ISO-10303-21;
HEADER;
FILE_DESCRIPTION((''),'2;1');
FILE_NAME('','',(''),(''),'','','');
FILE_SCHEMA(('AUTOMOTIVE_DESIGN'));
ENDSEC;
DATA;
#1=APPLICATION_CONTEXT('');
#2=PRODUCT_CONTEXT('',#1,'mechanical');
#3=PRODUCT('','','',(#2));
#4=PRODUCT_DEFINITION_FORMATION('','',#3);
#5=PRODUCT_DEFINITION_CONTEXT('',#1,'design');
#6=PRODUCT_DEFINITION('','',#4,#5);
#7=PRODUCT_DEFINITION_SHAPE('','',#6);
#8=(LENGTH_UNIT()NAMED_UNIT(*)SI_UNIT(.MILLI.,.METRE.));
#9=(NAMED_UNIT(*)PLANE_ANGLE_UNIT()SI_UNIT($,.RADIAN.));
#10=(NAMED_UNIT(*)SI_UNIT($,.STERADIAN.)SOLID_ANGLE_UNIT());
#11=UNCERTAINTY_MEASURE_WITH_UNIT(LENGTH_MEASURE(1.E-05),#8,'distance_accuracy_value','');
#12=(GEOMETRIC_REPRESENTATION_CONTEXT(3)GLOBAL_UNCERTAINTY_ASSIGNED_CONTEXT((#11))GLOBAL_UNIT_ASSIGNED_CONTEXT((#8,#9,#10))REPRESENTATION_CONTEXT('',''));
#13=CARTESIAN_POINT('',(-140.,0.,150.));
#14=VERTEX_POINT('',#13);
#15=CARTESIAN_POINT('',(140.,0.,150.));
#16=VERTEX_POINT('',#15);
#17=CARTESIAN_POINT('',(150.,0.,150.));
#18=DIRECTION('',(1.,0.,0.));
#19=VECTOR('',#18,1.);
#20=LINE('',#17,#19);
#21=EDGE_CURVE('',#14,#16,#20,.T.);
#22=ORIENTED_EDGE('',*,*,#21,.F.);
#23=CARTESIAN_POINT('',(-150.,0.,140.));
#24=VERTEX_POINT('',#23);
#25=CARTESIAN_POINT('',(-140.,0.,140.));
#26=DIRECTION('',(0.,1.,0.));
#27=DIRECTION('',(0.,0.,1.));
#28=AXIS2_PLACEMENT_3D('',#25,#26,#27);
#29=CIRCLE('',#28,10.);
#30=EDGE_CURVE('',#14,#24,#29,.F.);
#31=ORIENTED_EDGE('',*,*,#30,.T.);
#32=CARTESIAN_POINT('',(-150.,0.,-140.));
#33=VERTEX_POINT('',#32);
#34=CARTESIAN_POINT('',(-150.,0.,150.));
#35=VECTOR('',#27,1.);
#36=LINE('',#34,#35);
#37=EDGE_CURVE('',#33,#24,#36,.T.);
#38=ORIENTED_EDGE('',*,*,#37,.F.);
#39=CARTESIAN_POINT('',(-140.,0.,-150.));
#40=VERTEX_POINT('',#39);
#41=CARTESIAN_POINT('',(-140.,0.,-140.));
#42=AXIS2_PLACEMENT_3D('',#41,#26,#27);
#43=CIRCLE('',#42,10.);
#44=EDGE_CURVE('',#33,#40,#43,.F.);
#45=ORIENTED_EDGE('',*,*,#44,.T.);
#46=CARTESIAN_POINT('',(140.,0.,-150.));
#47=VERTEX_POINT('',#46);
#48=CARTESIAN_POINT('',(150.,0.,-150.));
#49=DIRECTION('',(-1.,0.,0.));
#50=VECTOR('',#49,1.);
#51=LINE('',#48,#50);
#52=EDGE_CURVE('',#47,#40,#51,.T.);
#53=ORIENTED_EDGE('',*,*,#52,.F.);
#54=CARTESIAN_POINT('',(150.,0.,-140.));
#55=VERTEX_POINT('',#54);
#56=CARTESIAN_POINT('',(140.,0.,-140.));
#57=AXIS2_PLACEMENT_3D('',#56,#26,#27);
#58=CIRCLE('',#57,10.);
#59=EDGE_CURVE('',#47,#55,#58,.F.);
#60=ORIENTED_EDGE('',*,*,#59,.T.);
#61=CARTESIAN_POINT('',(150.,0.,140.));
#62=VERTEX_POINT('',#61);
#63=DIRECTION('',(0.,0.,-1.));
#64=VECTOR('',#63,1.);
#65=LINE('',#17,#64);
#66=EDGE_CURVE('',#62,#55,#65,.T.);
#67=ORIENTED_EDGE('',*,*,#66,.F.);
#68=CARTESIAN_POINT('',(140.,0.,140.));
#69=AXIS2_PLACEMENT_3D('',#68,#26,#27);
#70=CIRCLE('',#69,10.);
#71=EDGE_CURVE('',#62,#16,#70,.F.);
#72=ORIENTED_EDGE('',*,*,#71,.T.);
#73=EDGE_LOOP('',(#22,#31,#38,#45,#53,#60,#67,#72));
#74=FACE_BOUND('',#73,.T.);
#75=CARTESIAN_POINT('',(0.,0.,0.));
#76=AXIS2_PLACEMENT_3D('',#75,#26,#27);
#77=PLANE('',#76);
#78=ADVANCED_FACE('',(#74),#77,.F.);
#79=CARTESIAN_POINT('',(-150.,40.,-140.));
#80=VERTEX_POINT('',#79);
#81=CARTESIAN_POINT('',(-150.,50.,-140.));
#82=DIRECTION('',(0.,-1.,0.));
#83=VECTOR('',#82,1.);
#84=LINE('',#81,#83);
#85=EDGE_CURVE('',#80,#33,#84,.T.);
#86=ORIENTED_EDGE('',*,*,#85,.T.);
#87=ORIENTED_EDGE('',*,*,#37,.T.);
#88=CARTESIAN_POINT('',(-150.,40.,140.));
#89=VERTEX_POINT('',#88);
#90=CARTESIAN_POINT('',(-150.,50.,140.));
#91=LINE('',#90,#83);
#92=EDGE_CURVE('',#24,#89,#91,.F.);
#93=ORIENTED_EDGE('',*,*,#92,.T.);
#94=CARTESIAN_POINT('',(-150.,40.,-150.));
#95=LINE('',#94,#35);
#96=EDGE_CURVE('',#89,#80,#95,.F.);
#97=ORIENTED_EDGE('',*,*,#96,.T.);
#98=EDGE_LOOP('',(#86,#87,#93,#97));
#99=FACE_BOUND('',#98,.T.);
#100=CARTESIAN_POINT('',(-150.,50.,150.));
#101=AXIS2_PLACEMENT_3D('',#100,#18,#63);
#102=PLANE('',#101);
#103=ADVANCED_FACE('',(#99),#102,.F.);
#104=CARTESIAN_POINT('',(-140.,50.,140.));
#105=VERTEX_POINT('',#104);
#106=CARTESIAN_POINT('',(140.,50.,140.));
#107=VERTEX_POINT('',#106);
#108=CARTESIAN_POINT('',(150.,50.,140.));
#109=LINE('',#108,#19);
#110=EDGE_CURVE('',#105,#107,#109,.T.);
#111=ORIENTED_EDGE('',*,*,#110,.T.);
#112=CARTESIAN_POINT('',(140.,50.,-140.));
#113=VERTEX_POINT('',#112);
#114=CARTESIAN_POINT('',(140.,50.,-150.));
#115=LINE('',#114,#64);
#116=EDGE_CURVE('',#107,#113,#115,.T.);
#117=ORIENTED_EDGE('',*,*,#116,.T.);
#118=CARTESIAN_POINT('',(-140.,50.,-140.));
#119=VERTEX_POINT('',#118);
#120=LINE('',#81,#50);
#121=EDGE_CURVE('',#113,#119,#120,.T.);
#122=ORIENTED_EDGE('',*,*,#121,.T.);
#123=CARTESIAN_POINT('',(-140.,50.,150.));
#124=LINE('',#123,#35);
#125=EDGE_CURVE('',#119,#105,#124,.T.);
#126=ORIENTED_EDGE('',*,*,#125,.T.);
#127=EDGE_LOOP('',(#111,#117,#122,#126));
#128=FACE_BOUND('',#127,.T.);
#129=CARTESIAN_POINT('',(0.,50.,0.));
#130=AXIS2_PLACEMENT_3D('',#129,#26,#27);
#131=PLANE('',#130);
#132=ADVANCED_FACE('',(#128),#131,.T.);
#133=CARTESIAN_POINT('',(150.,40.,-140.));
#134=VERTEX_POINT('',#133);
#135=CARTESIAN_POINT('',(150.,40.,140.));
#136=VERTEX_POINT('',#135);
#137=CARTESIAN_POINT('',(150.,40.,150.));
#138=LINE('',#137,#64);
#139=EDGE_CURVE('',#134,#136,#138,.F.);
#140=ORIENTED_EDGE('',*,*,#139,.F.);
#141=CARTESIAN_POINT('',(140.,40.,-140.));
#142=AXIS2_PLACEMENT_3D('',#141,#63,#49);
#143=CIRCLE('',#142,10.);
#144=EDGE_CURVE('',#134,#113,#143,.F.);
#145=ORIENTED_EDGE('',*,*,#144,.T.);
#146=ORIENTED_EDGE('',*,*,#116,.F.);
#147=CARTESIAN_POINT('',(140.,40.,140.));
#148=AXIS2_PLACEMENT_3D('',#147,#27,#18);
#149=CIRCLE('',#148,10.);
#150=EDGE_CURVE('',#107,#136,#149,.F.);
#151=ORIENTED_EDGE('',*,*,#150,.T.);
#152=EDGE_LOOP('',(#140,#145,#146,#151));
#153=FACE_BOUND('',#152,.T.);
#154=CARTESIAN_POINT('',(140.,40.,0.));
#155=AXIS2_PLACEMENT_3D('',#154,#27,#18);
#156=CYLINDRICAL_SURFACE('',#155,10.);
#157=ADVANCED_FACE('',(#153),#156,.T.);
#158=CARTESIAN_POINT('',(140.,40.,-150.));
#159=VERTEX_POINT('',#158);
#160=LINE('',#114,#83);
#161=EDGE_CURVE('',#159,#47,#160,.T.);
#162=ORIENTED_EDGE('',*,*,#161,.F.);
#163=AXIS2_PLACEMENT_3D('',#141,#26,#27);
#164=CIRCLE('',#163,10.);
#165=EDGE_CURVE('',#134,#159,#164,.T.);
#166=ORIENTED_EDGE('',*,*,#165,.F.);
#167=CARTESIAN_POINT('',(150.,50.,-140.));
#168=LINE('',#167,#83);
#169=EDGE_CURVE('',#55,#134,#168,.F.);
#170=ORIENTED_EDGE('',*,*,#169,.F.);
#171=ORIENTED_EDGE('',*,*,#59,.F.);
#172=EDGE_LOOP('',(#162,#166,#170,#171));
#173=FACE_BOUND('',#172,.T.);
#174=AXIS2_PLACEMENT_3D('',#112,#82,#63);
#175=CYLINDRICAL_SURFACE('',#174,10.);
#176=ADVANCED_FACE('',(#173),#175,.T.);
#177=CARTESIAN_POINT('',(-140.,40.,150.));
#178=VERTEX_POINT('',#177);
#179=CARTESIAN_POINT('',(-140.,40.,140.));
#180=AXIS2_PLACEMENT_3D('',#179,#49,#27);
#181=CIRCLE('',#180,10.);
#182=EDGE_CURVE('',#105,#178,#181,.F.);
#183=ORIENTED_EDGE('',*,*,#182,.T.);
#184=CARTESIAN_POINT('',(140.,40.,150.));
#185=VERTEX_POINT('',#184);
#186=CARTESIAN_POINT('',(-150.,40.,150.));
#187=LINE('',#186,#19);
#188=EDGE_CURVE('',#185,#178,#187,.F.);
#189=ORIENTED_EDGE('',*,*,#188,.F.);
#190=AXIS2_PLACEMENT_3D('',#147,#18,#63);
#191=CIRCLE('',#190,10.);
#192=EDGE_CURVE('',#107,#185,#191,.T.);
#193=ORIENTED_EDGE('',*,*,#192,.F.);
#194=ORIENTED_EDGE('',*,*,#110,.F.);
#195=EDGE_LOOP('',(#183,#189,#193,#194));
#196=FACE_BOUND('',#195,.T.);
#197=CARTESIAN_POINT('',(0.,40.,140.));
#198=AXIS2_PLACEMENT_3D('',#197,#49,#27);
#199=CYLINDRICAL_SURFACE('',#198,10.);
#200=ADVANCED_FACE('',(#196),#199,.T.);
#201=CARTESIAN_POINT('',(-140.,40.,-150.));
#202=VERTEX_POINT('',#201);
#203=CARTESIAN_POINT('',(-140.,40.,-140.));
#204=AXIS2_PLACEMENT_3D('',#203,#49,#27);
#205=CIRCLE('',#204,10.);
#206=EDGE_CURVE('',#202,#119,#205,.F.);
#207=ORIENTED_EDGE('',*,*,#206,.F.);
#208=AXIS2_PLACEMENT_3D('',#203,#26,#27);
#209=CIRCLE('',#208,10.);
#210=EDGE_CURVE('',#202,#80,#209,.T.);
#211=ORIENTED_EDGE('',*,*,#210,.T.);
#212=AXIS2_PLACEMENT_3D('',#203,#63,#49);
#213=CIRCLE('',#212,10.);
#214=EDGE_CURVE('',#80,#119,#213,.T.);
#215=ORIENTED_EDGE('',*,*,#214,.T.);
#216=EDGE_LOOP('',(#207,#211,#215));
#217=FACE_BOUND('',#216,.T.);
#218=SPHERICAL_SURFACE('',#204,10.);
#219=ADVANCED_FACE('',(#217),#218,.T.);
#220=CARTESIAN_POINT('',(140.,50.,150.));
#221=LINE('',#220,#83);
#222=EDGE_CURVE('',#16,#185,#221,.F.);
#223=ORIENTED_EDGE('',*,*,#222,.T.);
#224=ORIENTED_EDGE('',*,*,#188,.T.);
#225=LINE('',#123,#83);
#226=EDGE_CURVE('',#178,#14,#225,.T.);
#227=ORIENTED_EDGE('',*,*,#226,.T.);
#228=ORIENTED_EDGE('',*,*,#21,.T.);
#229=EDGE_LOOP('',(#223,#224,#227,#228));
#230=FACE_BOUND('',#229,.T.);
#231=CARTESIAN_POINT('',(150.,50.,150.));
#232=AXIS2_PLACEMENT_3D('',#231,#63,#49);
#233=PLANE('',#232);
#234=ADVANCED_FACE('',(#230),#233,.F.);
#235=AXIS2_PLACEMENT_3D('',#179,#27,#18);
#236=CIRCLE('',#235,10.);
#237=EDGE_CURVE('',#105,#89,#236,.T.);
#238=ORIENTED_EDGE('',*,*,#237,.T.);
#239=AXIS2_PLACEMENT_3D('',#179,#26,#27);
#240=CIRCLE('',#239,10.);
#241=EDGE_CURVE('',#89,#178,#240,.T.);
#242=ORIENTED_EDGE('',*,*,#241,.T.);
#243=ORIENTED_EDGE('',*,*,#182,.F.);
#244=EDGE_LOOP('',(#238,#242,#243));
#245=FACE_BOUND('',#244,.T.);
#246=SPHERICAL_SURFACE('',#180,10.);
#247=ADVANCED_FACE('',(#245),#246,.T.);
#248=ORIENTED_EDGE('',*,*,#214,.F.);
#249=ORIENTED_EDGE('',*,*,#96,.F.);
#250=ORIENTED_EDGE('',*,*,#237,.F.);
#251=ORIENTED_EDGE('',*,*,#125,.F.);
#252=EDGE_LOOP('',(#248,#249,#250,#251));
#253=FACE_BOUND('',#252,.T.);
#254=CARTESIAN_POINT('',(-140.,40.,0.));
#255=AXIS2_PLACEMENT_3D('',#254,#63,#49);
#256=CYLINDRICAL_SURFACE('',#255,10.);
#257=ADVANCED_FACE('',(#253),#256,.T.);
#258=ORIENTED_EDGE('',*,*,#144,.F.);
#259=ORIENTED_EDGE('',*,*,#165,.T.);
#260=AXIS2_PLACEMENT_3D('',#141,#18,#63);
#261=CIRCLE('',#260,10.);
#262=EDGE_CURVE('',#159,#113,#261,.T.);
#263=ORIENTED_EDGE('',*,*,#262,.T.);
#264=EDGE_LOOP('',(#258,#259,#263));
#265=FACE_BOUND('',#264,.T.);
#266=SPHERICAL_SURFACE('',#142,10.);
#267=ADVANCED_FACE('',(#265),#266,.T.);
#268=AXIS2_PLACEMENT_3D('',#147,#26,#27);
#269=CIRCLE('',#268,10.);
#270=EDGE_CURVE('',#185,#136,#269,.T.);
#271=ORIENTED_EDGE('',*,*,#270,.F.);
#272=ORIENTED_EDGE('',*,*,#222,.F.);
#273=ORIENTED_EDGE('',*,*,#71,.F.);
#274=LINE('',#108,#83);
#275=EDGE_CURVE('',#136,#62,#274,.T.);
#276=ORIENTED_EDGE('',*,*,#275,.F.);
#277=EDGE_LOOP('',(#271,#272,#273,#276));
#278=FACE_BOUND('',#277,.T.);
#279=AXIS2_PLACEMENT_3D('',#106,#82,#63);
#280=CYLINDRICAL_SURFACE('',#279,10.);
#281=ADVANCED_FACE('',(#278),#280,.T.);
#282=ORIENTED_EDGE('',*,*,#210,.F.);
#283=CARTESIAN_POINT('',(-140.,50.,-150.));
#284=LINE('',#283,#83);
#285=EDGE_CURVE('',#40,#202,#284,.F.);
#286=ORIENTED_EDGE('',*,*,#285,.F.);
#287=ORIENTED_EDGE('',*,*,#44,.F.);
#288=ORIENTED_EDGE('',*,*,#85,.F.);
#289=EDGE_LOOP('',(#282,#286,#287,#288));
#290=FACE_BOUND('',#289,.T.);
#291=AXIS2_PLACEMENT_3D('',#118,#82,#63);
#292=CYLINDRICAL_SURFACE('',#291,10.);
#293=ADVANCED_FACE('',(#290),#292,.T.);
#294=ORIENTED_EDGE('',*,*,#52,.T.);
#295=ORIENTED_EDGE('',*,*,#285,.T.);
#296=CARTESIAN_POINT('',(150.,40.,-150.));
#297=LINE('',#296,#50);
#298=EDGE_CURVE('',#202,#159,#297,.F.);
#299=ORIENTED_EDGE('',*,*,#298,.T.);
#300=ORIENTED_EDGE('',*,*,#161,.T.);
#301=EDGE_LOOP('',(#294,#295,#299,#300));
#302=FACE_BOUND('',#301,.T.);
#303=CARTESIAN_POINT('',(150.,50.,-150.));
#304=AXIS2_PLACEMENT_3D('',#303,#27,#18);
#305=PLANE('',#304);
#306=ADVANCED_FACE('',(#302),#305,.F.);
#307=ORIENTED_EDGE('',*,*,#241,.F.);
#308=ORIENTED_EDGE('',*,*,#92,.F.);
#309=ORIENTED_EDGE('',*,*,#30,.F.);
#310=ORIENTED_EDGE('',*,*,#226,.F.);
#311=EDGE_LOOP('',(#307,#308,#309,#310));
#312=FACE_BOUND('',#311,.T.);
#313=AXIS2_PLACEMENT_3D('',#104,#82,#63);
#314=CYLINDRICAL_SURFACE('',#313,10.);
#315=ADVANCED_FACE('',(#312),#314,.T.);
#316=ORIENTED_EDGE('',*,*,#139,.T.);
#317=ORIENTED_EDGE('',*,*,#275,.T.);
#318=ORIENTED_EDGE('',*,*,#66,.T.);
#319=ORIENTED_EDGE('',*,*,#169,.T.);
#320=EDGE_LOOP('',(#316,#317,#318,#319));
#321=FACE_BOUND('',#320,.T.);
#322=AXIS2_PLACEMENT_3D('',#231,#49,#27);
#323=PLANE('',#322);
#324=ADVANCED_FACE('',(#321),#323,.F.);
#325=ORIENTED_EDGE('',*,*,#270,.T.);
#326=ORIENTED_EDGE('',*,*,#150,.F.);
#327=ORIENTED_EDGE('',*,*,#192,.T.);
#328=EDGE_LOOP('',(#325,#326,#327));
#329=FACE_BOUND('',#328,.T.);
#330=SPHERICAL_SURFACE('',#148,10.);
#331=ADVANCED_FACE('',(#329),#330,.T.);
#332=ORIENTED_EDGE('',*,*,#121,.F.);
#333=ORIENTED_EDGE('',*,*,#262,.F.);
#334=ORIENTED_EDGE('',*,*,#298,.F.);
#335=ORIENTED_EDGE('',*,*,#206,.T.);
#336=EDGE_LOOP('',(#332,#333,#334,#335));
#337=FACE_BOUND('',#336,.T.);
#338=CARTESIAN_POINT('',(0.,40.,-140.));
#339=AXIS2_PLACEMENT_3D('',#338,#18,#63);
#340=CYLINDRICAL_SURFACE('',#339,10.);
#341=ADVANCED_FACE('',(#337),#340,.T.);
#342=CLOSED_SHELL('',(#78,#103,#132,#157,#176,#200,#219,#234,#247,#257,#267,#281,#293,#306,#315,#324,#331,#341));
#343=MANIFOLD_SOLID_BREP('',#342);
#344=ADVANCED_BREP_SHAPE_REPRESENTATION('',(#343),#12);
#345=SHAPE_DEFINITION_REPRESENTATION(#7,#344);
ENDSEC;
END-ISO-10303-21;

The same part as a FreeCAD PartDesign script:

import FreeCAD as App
import Part
import Sketcher

V = App.Vector
Q = App.Units.Quantity


def edges_at(feature, points):
    """Names of the edges that pass closest to the given points."""
    edges = feature.Shape.Edges
    near = lambda p: min(range(len(edges)), key=lambda i: edges[i].distToShape(Part.Vertex(*p))[0])
    return sorted({f"Edge{near(p) + 1}" for p in points})


def add_polygon(sketch, points):
    """Adds a closed chain of lines whose ends are joined by coincident constraints."""
    first, n = sketch.GeometryCount, len(points)
    for a, b in zip(points, points[1:] + points[:1]):
        sketch.addGeometry(Part.LineSegment(App.Vector(*a, 0), App.Vector(*b, 0)), False)
    for i in range(n):
        sketch.addConstraint(Sketcher.Constraint("Coincident", first + i, 2, first + (i + 1) % n, 1))

doc = App.newDocument("Part")
body = doc.addObject("PartDesign::Body", "Body")

# Sketch on XZ plane
sketch1 = doc.addObject("Sketcher::SketchObject", "Sketch")
body.addObject(sketch1)
sketch1.AttachmentSupport = (doc.XZ_Plane, [""])
sketch1.MapMode = "FlatFace"
add_polygon(sketch1, [(-150, -150), (-150, 150), (150, 150), (150, -150)])  # lines 0-3
sketch1.addConstraint(Sketcher.Constraint("Vertical", 0))
sketch1.addConstraint(Sketcher.Constraint("Horizontal", 1))
sketch1.addConstraint(Sketcher.Constraint("Vertical", 2))
sketch1.addConstraint(Sketcher.Constraint("Horizontal", 3))
sketch1.addConstraint(Sketcher.Constraint("Symmetric", 0, 2, 2, 2, -1, 1))
sketch1.addConstraint(Sketcher.Constraint("Equal", 3, 0))
sketch1.addConstraint(Sketcher.Constraint("DistanceX", 1, 1, 1, 2, Q("300 mm")))
pad1 = doc.addObject("PartDesign::Pad", "Pad")
body.addObject(pad1)
pad1.Profile = sketch1
pad1.Length = 50
pad1.Reversed = True
doc.recompute()

fillet = doc.addObject("PartDesign::Fillet", "Fillet")
body.addObject(fillet)
fillet.Base = (pad1, edges_at(pad1, [
    (150, 50, 0),
    (0, 50, -150),
    (-150, 50, 0),
    (-150, 25, -150),
    (150, 25, -150),
    (150, 25, 150),
    (-150, 25, 150),
    (0, 50, 150),
]))
fillet.Radius = 10

doc.recompute()
